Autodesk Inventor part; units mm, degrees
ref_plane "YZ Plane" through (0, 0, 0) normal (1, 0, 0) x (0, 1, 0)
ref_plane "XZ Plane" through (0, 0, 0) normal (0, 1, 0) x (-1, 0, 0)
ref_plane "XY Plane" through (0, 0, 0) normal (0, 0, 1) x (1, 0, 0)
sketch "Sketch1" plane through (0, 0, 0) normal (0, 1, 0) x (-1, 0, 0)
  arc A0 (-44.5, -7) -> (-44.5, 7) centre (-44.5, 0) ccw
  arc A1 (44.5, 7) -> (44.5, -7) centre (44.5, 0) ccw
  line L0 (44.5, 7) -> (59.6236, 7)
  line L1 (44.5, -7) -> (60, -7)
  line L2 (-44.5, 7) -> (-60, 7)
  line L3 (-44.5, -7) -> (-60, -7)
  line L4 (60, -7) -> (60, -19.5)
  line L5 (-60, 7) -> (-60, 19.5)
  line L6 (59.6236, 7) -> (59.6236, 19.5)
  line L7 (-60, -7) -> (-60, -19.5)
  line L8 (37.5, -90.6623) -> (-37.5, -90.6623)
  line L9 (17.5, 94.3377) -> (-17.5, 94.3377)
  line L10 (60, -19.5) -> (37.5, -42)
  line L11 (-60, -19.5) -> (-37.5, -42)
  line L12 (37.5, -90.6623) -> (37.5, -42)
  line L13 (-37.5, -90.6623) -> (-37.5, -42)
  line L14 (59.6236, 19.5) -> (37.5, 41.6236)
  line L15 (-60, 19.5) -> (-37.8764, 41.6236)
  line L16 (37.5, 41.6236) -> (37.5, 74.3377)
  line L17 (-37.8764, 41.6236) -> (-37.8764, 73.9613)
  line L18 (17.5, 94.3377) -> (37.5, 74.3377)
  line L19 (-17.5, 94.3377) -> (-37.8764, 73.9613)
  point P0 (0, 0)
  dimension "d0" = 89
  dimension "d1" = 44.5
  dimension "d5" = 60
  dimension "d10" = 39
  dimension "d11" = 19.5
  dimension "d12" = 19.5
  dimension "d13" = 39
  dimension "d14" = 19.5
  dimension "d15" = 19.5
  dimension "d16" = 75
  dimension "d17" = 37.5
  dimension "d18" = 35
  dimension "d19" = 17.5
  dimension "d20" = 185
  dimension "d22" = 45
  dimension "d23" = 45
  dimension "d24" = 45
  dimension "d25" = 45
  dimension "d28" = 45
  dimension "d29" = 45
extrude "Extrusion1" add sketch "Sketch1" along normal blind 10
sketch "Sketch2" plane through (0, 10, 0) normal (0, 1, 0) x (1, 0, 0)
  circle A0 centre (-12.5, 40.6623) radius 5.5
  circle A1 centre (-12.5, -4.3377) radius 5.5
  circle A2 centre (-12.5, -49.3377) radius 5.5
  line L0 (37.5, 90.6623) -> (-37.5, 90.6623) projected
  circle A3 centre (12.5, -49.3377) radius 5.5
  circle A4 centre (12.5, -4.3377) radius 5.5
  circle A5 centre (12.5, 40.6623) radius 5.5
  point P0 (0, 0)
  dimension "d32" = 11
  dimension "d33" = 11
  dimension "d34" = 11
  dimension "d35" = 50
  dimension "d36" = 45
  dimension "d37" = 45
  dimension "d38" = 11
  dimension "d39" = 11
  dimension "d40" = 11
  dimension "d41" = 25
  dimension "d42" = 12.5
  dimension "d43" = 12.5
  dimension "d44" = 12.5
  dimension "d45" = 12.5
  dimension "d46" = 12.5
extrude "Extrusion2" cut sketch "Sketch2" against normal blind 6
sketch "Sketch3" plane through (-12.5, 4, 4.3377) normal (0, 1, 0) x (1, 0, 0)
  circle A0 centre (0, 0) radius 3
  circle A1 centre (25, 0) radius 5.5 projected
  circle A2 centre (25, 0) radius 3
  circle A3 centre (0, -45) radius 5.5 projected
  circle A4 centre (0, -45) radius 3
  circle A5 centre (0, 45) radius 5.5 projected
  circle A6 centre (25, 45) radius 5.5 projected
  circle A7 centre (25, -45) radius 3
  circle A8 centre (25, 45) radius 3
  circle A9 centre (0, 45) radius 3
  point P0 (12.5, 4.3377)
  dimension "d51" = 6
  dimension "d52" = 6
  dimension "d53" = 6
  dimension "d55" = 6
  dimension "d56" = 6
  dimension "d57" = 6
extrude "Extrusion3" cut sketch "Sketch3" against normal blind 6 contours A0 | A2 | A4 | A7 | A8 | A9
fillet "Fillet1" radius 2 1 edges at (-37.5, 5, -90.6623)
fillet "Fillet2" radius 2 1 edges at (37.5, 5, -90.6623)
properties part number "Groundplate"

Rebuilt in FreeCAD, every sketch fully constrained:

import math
import FreeCAD as App
import Part
import Sketcher


def edges_at(feature, points):
    """Names of the edges that pass closest to the given points."""
    edges = feature.Shape.Edges
    near = lambda p: min(range(len(edges)), key=lambda i: edges[i].distToShape(Part.Vertex(*p))[0])
    return sorted({f"Edge{near(p) + 1}" for p in points})

doc = App.newDocument("Part")
body = doc.addObject("PartDesign::Body", "Body")

sketch1 = body.newObject("Sketcher::SketchObject", "Sketch")
sketch1.AttachmentSupport = (doc.getObject("XZ_Plane"), [""])
sketch1.MapMode = "FlatFace"
sketch1.addGeometry(Part.ArcOfCircle(Part.Circle(App.Vector(44.5, 0, 0), App.Vector(0, 0, 1), 7), math.radians(90), math.radians(270)), False)
sketch1.addGeometry(Part.LineSegment(App.Vector(44.5, -7, 0), App.Vector(60, -7, 0)), False)
sketch1.addGeometry(Part.LineSegment(App.Vector(60, -7, 0), App.Vector(60, -19.5, 0)), False)
sketch1.addGeometry(Part.LineSegment(App.Vector(60, -19.5, 0), App.Vector(37.5, -42, 0)), False)
sketch1.addGeometry(Part.LineSegment(App.Vector(37.5, -42, 0), App.Vector(37.5, -90.6623, 0)), False)
sketch1.addGeometry(Part.LineSegment(App.Vector(37.5, -90.6623, 0), App.Vector(-37.5, -90.6623, 0)), False)
sketch1.addGeometry(Part.LineSegment(App.Vector(-37.5, -90.6623, 0), App.Vector(-37.5, -42, 0)), False)
sketch1.addGeometry(Part.LineSegment(App.Vector(-37.5, -42, 0), App.Vector(-60, -19.5, 0)), False)
sketch1.addGeometry(Part.LineSegment(App.Vector(-60, -19.5, 0), App.Vector(-60, -7, 0)), False)
sketch1.addGeometry(Part.LineSegment(App.Vector(-60, -7, 0), App.Vector(-44.5, -7, 0)), False)
sketch1.addGeometry(Part.ArcOfCircle(Part.Circle(App.Vector(-44.5, 0, 0), App.Vector(0, 0, 1), 7), math.radians(-90), math.radians(90)), False)
sketch1.addGeometry(Part.LineSegment(App.Vector(-44.5, 7, 0), App.Vector(-59.6236, 7, 0)), False)
sketch1.addGeometry(Part.LineSegment(App.Vector(-59.6236, 7, 0), App.Vector(-59.6236, 19.5, 0)), False)
sketch1.addGeometry(Part.LineSegment(App.Vector(-59.6236, 19.5, 0), App.Vector(-37.5, 41.6236, 0)), False)
sketch1.addGeometry(Part.LineSegment(App.Vector(-37.5, 41.6236, 0), App.Vector(-37.5, 74.3377, 0)), False)
sketch1.addGeometry(Part.LineSegment(App.Vector(-37.5, 74.3377, 0), App.Vector(-17.5, 94.3377, 0)), False)
sketch1.addGeometry(Part.LineSegment(App.Vector(-17.5, 94.3377, 0), App.Vector(17.5, 94.3377, 0)), False)
sketch1.addGeometry(Part.LineSegment(App.Vector(17.5, 94.3377, 0), App.Vector(37.8764, 73.9613, 0)), False)
sketch1.addGeometry(Part.LineSegment(App.Vector(37.8764, 73.9613, 0), App.Vector(37.8764, 41.6236, 0)), False)
sketch1.addGeometry(Part.LineSegment(App.Vector(37.8764, 41.6236, 0), App.Vector(60, 19.5, 0)), False)
sketch1.addGeometry(Part.LineSegment(App.Vector(60, 19.5, 0), App.Vector(60, 7, 0)), False)
sketch1.addGeometry(Part.LineSegment(App.Vector(60, 7, 0), App.Vector(44.5, 7, 0)), False)
sketch1.addConstraint(Sketcher.Constraint("Tangent", 0, 2, 1, 1))
sketch1.addConstraint(Sketcher.Constraint("Coincident", 1, 2, 2, 1))
sketch1.addConstraint(Sketcher.Constraint("Coincident", 2, 2, 3, 1))
sketch1.addConstraint(Sketcher.Constraint("Coincident", 3, 2, 4, 1))
sketch1.addConstraint(Sketcher.Constraint("Coincident", 4, 2, 5, 1))
sketch1.addConstraint(Sketcher.Constraint("Coincident", 5, 2, 6, 1))
sketch1.addConstraint(Sketcher.Constraint("Coincident", 6, 2, 7, 1))
sketch1.addConstraint(Sketcher.Constraint("Coincident", 7, 2, 8, 1))
sketch1.addConstraint(Sketcher.Constraint("Coincident", 8, 2, 9, 1))
sketch1.addConstraint(Sketcher.Constraint("Tangent", 9, 2, 10, 1))
sketch1.addConstraint(Sketcher.Constraint("Tangent", 10, 2, 11, 1))
sketch1.addConstraint(Sketcher.Constraint("Coincident", 11, 2, 12, 1))
sketch1.addConstraint(Sketcher.Constraint("Coincident", 12, 2, 13, 1))
sketch1.addConstraint(Sketcher.Constraint("Coincident", 13, 2, 14, 1))
sketch1.addConstraint(Sketcher.Constraint("Coincident", 14, 2, 15, 1))
sketch1.addConstraint(Sketcher.Constraint("Coincident", 15, 2, 16, 1))
sketch1.addConstraint(Sketcher.Constraint("Coincident", 16, 2, 17, 1))
sketch1.addConstraint(Sketcher.Constraint("Coincident", 17, 2, 18, 1))
sketch1.addConstraint(Sketcher.Constraint("Coincident", 18, 2, 19, 1))
sketch1.addConstraint(Sketcher.Constraint("Coincident", 19, 2, 20, 1))
sketch1.addConstraint(Sketcher.Constraint("Coincident", 20, 2, 21, 1))
sketch1.addConstraint(Sketcher.Constraint("Tangent", 21, 2, 0, 1))
sketch1.addConstraint(Sketcher.Constraint("Horizontal", 1))
sketch1.addConstraint(Sketcher.Constraint("Vertical", 2))
sketch1.addConstraint(Sketcher.Constraint("Vertical", 4))
sketch1.addConstraint(Sketcher.Constraint("Horizontal", 5))
sketch1.addConstraint(Sketcher.Constraint("Vertical", 6))
sketch1.addConstraint(Sketcher.Constraint("Vertical", 8))
sketch1.addConstraint(Sketcher.Constraint("Horizontal", 9))
sketch1.addConstraint(Sketcher.Constraint("Horizontal", 11))
sketch1.addConstraint(Sketcher.Constraint("Vertical", 12))
sketch1.addConstraint(Sketcher.Constraint("Vertical", 14))
sketch1.addConstraint(Sketcher.Constraint("Horizontal", 16))
sketch1.addConstraint(Sketcher.Constraint("Vertical", 18))
sketch1.addConstraint(Sketcher.Constraint("Vertical", 20))
sketch1.addConstraint(Sketcher.Constraint("Horizontal", 21))
sketch1.addConstraint(Sketcher.Constraint("Equal", 0, 10))
sketch1.addConstraint(Sketcher.Constraint("Symmetric", 0, 3, 10, 3, -1, 1))
sketch1.addConstraint(Sketcher.Constraint("Symmetric", 7, 2, 19, 2, -1, 1))
sketch1.addConstraint(Sketcher.Constraint("Symmetric", 3, 2, 6, 2, -2))
sketch1.addConstraint(Sketcher.Constraint("Symmetric", 2, 2, 7, 2, -2))
sketch1.addConstraint(Sketcher.Constraint("PointOnObject", 0, 3, -1))
sketch1.addConstraint(Sketcher.Constraint("Perpendicular", 3, 7))
sketch1.addConstraint(Sketcher.Constraint("Perpendicular", 7, 13))
sketch1.addConstraint(Sketcher.Constraint("Parallel", 13, 15))
sketch1.addConstraint(Sketcher.Constraint("Perpendicular", 15, 17))
sketch1.addConstraint(Sketcher.Constraint("Parallel", 17, 19))
sketch1.addConstraint(Sketcher.Constraint("Horizontal", 13, 2, 18, 2))
sketch1.addConstraint(Sketcher.Constraint("Horizontal", 12, 2, 19, 2))
sketch1.addConstraint(Sketcher.Constraint("Vertical", 6, 2, 13, 2))
sketch1.addConstraint(Sketcher.Constraint("DistanceX", 5, 2, 5, 1, 75.0))
sketch1.addConstraint(Sketcher.Constraint("DistanceX", 16, 1, 16, 2, 35.0))
sketch1.addConstraint(Sketcher.Constraint("DistanceX", -1, 1, 1, 2, 60.0))
sketch1.addConstraint(Sketcher.Constraint("Radius", 0, 7.0))
sketch1.addConstraint(Sketcher.Constraint("DistanceX", 10, 3, 0, 3, 89.0))
sketch1.addConstraint(Sketcher.Constraint("DistanceY", 3, 2, 0, 2, 35.0))
sketch1.addConstraint(Sketcher.Constraint("DistanceX", 15, 2, -1, 1, 17.5))
sketch1.addConstraint(Sketcher.Constraint("DistanceY", 14, 1, 14, 2, 32.714))
sketch1.addConstraint(Sketcher.Constraint("DistanceX", 11, 2, 11, 1, 15.1236))
sketch1.addConstraint(Sketcher.Constraint("DistanceY", 4, 2, 4, 1, 48.6623))
pad1 = body.newObject("PartDesign::Pad", "Pad")
pad1.Profile = sketch1
pad1.Length = 10
pad1.Reversed = True

sketch2 = body.newObject("Sketcher::SketchObject", "Sketch001")
sketch2.AttachmentSupport = (doc.getObject("XZ_Plane"), [""])
sketch2.MapMode = "FlatFace"
sketch2.AttachmentOffset = App.Placement(App.Vector(0, 0, -10), App.Rotation())
sketch2.addGeometry(Part.Circle(App.Vector(-12.5, -40.6623, 0), App.Vector(0, 0, 1), 5.5), False)
sketch2.addGeometry(Part.Circle(App.Vector(-12.5, 4.3377, 0), App.Vector(0, 0, 1), 5.5), False)
sketch2.addGeometry(Part.Circle(App.Vector(-12.5, 49.3377, 0), App.Vector(0, 0, 1), 5.5), False)
sketch2.addGeometry(Part.Circle(App.Vector(12.5, 49.3377, 0), App.Vector(0, 0, 1), 5.5), False)
sketch2.addGeometry(Part.Circle(App.Vector(12.5, 4.3377, 0), App.Vector(0, 0, 1), 5.5), False)
sketch2.addGeometry(Part.Circle(App.Vector(12.5, -40.6623, 0), App.Vector(0, 0, 1), 5.5), False)
sketch2.addConstraint(Sketcher.Constraint("Equal", 0, 1))
sketch2.addConstraint(Sketcher.Constraint("Equal", 1, 2))
sketch2.addConstraint(Sketcher.Constraint("Equal", 2, 3))
sketch2.addConstraint(Sketcher.Constraint("Equal", 3, 4))
sketch2.addConstraint(Sketcher.Constraint("Equal", 4, 5))
sketch2.addConstraint(Sketcher.Constraint("Symmetric", 2, 3, 3, 3, -2))
sketch2.addConstraint(Sketcher.Constraint("Symmetric", 1, 3, 4, 3, -2))
sketch2.addConstraint(Sketcher.Constraint("Symmetric", 0, 3, 5, 3, -2))
sketch2.addConstraint(Sketcher.Constraint("Vertical", 0, 3, 1, 3))
sketch2.addConstraint(Sketcher.Constraint("Vertical", 1, 3, 2, 3))
sketch2.addConstraint(Sketcher.Constraint("Diameter", 0, 11.0))
sketch2.addConstraint(Sketcher.Constraint("DistanceY", 0, 3, 1, 3, 45.0))
sketch2.addConstraint(Sketcher.Constraint("DistanceY", 1, 3, 2, 3, 45.0))
sketch2.addConstraint(Sketcher.Constraint("DistanceX", 2, 3, 3, 3, 25.0))
sketch2.addConstraint(Sketcher.Constraint("DistanceY", 0, 3, -1, 1, 40.6623))
pocket1 = body.newObject("PartDesign::Pocket", "Pocket")
pocket1.Profile = sketch2
pocket1.Length = 6
pocket1.Reversed = True

sketch3 = body.newObject("Sketcher::SketchObject", "Sketch002")
sketch3.AttachmentSupport = (doc.getObject("XZ_Plane"), [""])
sketch3.MapMode = "FlatFace"
sketch3.AttachmentOffset = App.Placement(App.Vector(0, 0, -4), App.Rotation())
sketch3.addGeometry(Part.Circle(App.Vector(-12.5, 4.3377, 0), App.Vector(0, 0, 1), 3), False)
sketch3.addGeometry(Part.Circle(App.Vector(12.5, 4.3377, 0), App.Vector(0, 0, 1), 3), False)
sketch3.addGeometry(Part.Circle(App.Vector(-12.5, 49.3377, 0), App.Vector(0, 0, 1), 3), False)
sketch3.addGeometry(Part.Circle(App.Vector(12.5, 49.3377, 0), App.Vector(0, 0, 1), 3), False)
sketch3.addGeometry(Part.Circle(App.Vector(12.5, -40.6623, 0), App.Vector(0, 0, 1), 3), False)
sketch3.addGeometry(Part.Circle(App.Vector(-12.5, -40.6623, 0), App.Vector(0, 0, 1), 3), False)
sketch3.addConstraint(Sketcher.Constraint("Equal", 0, 1))
sketch3.addConstraint(Sketcher.Constraint("Equal", 1, 2))
sketch3.addConstraint(Sketcher.Constraint("Equal", 2, 3))
sketch3.addConstraint(Sketcher.Constraint("Equal", 3, 4))
sketch3.addConstraint(Sketcher.Constraint("Equal", 4, 5))
sketch3.addConstraint(Sketcher.Constraint("Symmetric", 0, 3, 1, 3, -2))
sketch3.addConstraint(Sketcher.Constraint("Symmetric", 2, 3, 3, 3, -2))
sketch3.addConstraint(Sketcher.Constraint("Symmetric", 4, 3, 5, 3, -2))
sketch3.addConstraint(Sketcher.Constraint("Vertical", 0, 3, 2, 3))
sketch3.addConstraint(Sketcher.Constraint("Vertical", 3, 3, 4, 3))
sketch3.addConstraint(Sketcher.Constraint("Diameter", 0, 6.0))
sketch3.addConstraint(Sketcher.Constraint("DistanceX", 0, 3, 1, 3, 25.0))
sketch3.addConstraint(Sketcher.Constraint("DistanceY", 0, 3, 2, 3, 45.0))
sketch3.addConstraint(Sketcher.Constraint("DistanceY", 4, 3, 1, 3, 45.0))
sketch3.addConstraint(Sketcher.Constraint("DistanceY", -1, 1, 0, 3, 4.3377))
pocket2 = body.newObject("PartDesign::Pocket", "Pocket001")
pocket2.Profile = sketch3
pocket2.Length = 6
pocket2.Reversed = True
doc.recompute()

fillet = body.newObject("PartDesign::Fillet", "Fillet")
fillet.Base = (pocket2, edges_at(pocket2, [(-37.5, 5, -90.662)]))
fillet.Radius = 2
doc.recompute()

fillet2 = body.newObject("PartDesign::Fillet", "Fillet001")
fillet2.Base = (fillet, edges_at(fillet, [(37.5, 5, -90.662)]))
fillet2.Radius = 2

doc.recompute()
